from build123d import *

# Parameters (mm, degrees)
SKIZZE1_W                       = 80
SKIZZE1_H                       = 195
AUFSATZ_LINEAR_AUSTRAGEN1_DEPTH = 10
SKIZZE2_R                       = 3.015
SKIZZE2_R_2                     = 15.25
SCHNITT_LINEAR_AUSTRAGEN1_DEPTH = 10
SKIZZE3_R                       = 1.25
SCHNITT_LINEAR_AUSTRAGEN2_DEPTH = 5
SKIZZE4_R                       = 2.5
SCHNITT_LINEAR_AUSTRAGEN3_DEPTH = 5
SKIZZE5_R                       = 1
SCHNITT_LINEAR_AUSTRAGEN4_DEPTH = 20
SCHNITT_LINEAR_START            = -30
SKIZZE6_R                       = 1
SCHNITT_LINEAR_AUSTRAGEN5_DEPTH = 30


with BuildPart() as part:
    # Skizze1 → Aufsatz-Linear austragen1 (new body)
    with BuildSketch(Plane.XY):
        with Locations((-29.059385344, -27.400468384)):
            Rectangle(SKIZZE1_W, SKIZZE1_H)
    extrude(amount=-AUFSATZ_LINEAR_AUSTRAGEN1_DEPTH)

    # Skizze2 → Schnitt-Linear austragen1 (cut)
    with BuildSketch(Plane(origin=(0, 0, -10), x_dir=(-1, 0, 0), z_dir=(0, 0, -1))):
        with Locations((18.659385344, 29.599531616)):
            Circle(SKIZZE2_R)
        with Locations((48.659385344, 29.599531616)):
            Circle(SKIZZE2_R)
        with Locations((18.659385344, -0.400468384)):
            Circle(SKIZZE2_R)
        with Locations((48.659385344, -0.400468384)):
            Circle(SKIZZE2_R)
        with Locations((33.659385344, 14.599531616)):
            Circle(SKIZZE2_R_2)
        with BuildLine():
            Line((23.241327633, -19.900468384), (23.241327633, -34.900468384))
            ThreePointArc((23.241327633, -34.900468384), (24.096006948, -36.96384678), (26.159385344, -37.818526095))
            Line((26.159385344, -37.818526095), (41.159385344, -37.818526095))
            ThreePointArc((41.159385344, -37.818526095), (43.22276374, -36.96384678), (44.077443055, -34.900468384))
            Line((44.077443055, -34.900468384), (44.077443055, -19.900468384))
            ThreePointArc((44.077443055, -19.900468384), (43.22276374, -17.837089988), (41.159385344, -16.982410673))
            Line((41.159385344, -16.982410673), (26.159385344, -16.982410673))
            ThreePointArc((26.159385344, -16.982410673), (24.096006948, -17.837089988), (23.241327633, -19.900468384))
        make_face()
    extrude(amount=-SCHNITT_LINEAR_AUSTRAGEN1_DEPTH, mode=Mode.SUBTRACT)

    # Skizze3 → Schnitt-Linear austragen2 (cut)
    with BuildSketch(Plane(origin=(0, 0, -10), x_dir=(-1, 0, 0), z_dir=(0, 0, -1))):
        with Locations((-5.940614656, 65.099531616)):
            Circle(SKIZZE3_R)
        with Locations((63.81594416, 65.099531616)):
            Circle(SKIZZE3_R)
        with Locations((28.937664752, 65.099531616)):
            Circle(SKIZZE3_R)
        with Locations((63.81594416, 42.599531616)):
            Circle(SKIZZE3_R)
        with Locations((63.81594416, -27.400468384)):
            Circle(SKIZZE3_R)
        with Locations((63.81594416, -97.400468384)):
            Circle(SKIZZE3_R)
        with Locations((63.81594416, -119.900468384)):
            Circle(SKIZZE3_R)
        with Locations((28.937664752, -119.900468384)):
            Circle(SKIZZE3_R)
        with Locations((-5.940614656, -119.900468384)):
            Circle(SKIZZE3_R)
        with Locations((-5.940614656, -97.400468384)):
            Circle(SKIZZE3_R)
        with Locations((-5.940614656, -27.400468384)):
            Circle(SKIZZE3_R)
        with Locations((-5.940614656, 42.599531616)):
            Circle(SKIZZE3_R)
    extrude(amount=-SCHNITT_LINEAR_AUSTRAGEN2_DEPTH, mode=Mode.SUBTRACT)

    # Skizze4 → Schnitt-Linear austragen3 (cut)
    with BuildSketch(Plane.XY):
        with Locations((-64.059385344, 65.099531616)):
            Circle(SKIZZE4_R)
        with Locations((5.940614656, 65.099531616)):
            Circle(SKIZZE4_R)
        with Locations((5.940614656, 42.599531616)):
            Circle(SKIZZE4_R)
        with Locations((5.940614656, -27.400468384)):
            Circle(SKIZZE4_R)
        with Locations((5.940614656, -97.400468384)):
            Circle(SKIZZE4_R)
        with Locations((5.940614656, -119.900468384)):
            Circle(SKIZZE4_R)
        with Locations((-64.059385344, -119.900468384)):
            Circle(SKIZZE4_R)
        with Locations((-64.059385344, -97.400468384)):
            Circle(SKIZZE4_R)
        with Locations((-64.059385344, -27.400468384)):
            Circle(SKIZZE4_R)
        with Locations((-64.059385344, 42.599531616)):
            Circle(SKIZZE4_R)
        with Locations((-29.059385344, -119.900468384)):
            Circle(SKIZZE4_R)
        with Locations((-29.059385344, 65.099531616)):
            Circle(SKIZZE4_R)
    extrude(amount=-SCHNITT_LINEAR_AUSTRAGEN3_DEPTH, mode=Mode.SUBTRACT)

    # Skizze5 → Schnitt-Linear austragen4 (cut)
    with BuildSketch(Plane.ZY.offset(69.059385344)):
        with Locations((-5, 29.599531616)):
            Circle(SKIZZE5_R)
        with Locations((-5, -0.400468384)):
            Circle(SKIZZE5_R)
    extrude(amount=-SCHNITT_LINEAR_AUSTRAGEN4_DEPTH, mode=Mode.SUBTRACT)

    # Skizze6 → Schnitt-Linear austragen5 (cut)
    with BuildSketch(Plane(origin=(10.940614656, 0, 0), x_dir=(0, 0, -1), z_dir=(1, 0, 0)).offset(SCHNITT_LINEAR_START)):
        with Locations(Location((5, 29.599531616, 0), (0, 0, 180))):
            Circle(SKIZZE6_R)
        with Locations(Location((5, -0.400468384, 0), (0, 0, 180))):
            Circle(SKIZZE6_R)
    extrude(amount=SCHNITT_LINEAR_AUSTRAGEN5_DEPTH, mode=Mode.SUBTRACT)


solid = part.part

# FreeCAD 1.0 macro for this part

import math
import FreeCAD as App
import Part
import Sketcher
from FreeCAD import Vector

doc = App.newDocument("Part")
body = doc.addObject("PartDesign::Body", "Body")

# Sketch on XY plane
sketch1 = body.newObject("Sketcher::SketchObject", "Sketch")
sketch1.AttachmentSupport = (doc.getObject("XY_Plane"), [""])
sketch1.MapMode = "FlatFace"
sketch1.addGeometry([
    Part.LineSegment(Vector(-69.059385, 70.099532, 0), Vector(-69.059385, -124.900468, 0)),
    Part.LineSegment(Vector(-69.059385, -124.900468, 0), Vector(10.940615, -124.900468, 0)),
    Part.LineSegment(Vector(10.940615, -124.900468, 0), Vector(10.940615, 70.099532, 0)),
    Part.LineSegment(Vector(10.940615, 70.099532, 0), Vector(-69.059385, 70.099532, 0)),
], False)
sketch1.addConstraint([
    Sketcher.Constraint("Coincident", 0, 2, 1, 1),
    Sketcher.Constraint("Coincident", 1, 2, 2, 1),
    Sketcher.Constraint("Coincident", 2, 2, 3, 1),
    Sketcher.Constraint("Coincident", 3, 2, 0, 1),
    Sketcher.Constraint("Vertical", 0),
    Sketcher.Constraint("Horizontal", 1),
    Sketcher.Constraint("Vertical", 2),
    Sketcher.Constraint("Horizontal", 3),
    Sketcher.Constraint("DistanceX", 1, 1, 1, 2, 80.0),
    Sketcher.Constraint("DistanceY", 0, 2, 0, 1, 195.0),
    Sketcher.Constraint("DistanceY", 0, 2, -1, 1, 124.900468),
    Sketcher.Constraint("DistanceX", 0, 2, -1, 1, 69.059385),
])
pad1 = body.newObject("PartDesign::Pad", "Pad")
pad1.Profile = sketch1
pad1.Length = 10
pad1.Reversed = True

# Sketch on XY plane
sketch2 = body.newObject("Sketcher::SketchObject", "Sketch001")
sketch2.AttachmentSupport = (doc.getObject("XY_Plane"), [""])
sketch2.MapMode = "FlatFace"
sketch2.AttachmentOffset = App.Placement(Vector(0, 0, -10), App.Rotation())
sketch2.addGeometry([
    Part.Circle(Vector(-18.659385, 29.599532, 0), Vector(0, 0, 1), 3.015),  # 0
    Part.Circle(Vector(-48.659385, 29.599532, 0), Vector(0, 0, 1), 3.015),  # 1
    Part.Circle(Vector(-18.659385, -0.400468, 0), Vector(0, 0, 1), 3.015),  # 2
    Part.Circle(Vector(-48.659385, -0.400468, 0), Vector(0, 0, 1), 3.015),  # 3
    Part.Circle(Vector(-33.659385, 14.599532, 0), Vector(0, 0, 1), 15.25),  # 4
    Part.LineSegment(Vector(-23.241328, -19.900468, 0), Vector(-23.241328, -34.900468, 0)),  # 5
    Part.ArcOfCircle(Part.Circle(Vector(-26.159385, -34.900468, 0), Vector(0, 0, 1), 2.918058), math.radians(-90), math.radians(0)),  # 6
    Part.LineSegment(Vector(-26.159385, -37.818526, 0), Vector(-41.159385, -37.818526, 0)),  # 7
    Part.ArcOfCircle(Part.Circle(Vector(-41.159385, -34.900468, 0), Vector(0, 0, 1), 2.918058), math.radians(180), math.radians(270)),  # 8
    Part.LineSegment(Vector(-44.077443, -34.900468, 0), Vector(-44.077443, -19.900468, 0)),  # 9
    Part.ArcOfCircle(Part.Circle(Vector(-41.159385, -19.900468, 0), Vector(0, 0, 1), 2.918058), math.radians(90), math.radians(180)),  # 10
    Part.LineSegment(Vector(-41.159385, -16.982411, 0), Vector(-26.159385, -16.982411, 0)),  # 11
    Part.ArcOfCircle(Part.Circle(Vector(-26.159385, -19.900468, 0), Vector(0, 0, 1), 2.918058), math.radians(0), math.radians(90)),  # 12
], False)
sketch2.addConstraint([
    Sketcher.Constraint("Tangent", 5, 2, 6, 2),
    Sketcher.Constraint("Tangent", 6, 1, 7, 1),
    Sketcher.Constraint("Tangent", 7, 2, 8, 2),
    Sketcher.Constraint("Tangent", 8, 1, 9, 1),
    Sketcher.Constraint("Tangent", 9, 2, 10, 2),
    Sketcher.Constraint("Tangent", 10, 1, 11, 1),
    Sketcher.Constraint("Tangent", 11, 2, 12, 2),
    Sketcher.Constraint("Tangent", 12, 1, 5, 1),
    Sketcher.Constraint("Vertical", 5),
    Sketcher.Constraint("Horizontal", 7),
    Sketcher.Constraint("Vertical", 9),
    Sketcher.Constraint("Horizontal", 11),
    Sketcher.Constraint("Equal", 0, 1),
    Sketcher.Constraint("Equal", 1, 2),
    Sketcher.Constraint("Equal", 2, 3),
    Sketcher.Constraint("Equal", 6, 8),
    Sketcher.Constraint("Equal", 8, 10),
    Sketcher.Constraint("Equal", 10, 12),
    Sketcher.Constraint("Horizontal", 0, 3, 1, 3),
    Sketcher.Constraint("Horizontal", 2, 3, 3, 3),
    Sketcher.Constraint("Vertical", 0, 3, 2, 3),
    Sketcher.Constraint("Vertical", 1, 3, 3, 3),
    Sketcher.Constraint("Equal", 11, 5),
    Sketcher.Constraint("Diameter", 4, 30.5),
    Sketcher.Constraint("Diameter", 0, 6.03),
    Sketcher.Constraint("DistanceX", 7, 2, 7, 1, 15.0),
    Sketcher.Constraint("DistanceX", 1, 3, 0, 3, 30.0),
    Sketcher.Constraint("DistanceY", 2, 3, 0, 3, 30.0),
    Sketcher.Constraint("DistanceX", 4, 3, 0, 3, 15.0),
    Sketcher.Constraint("DistanceY", 4, 3, 0, 3, 15.0),
    Sketcher.Constraint("DistanceX", 6, 3, 2, 3, 7.5),
    Sketcher.Constraint("DistanceY", 6, 3, 2, 3, 34.5),
    Sketcher.Constraint("Radius", 6, 2.918058),
    Sketcher.Constraint("DistanceY", -1, 1, 0, 3, 29.599532),
    Sketcher.Constraint("DistanceX", 0, 3, -1, 1, 18.659385),
])
pocket1 = body.newObject("PartDesign::Pocket", "Pocket")
pocket1.Profile = sketch2
pocket1.Length = 10
pocket1.Reversed = True

# Sketch on XY plane
sketch3 = body.newObject("Sketcher::SketchObject", "Sketch002")
sketch3.AttachmentSupport = (doc.getObject("XY_Plane"), [""])
sketch3.MapMode = "FlatFace"
sketch3.AttachmentOffset = App.Placement(Vector(0, 0, -10), App.Rotation())
sketch3.addGeometry([
    Part.Circle(Vector(5.940615, 65.099532, 0), Vector(0, 0, 1), 1.25),  # 0
    Part.Circle(Vector(-63.815944, 65.099532, 0), Vector(0, 0, 1), 1.25),  # 1
    Part.Circle(Vector(-28.937665, 65.099532, 0), Vector(0, 0, 1), 1.25),  # 2
    Part.Circle(Vector(-63.815944, 42.599532, 0), Vector(0, 0, 1), 1.25),  # 3
    Part.Circle(Vector(-63.815944, -27.400468, 0), Vector(0, 0, 1), 1.25),  # 4
    Part.Circle(Vector(-63.815944, -97.400468, 0), Vector(0, 0, 1), 1.25),  # 5
    Part.Circle(Vector(-63.815944, -119.900468, 0), Vector(0, 0, 1), 1.25),  # 6
    Part.Circle(Vector(-28.937665, -119.900468, 0), Vector(0, 0, 1), 1.25),  # 7
    Part.Circle(Vector(5.940615, -119.900468, 0), Vector(0, 0, 1), 1.25),  # 8
    Part.Circle(Vector(5.940615, -97.400468, 0), Vector(0, 0, 1), 1.25),  # 9
    Part.Circle(Vector(5.940615, -27.400468, 0), Vector(0, 0, 1), 1.25),  # 10
    Part.Circle(Vector(5.940615, 42.599532, 0), Vector(0, 0, 1), 1.25),  # 11
], False)
sketch3.addConstraint([
    Sketcher.Constraint("Equal", 0, 1),
    Sketcher.Constraint("Equal", 1, 2),
    Sketcher.Constraint("Equal", 2, 3),
    Sketcher.Constraint("Equal", 3, 4),
    Sketcher.Constraint("Equal", 4, 5),
    Sketcher.Constraint("Equal", 5, 6),
    Sketcher.Constraint("Equal", 6, 7),
    Sketcher.Constraint("Equal", 7, 8),
    Sketcher.Constraint("Equal", 8, 9),
    Sketcher.Constraint("Equal", 9, 10),
    Sketcher.Constraint("Equal", 10, 11),
    Sketcher.Constraint("Horizontal", 0, 3, 1, 3),
    Sketcher.Constraint("Horizontal", 1, 3, 2, 3),
    Sketcher.Constraint("Horizontal", 6, 3, 7, 3),
    Sketcher.Constraint("Horizontal", 7, 3, 8, 3),
    Sketcher.Constraint("Horizontal", 5, 3, 9, 3),
    Sketcher.Constraint("Horizontal", 4, 3, 10, 3),
    Sketcher.Constraint("Horizontal", 3, 3, 11, 3),
    Sketcher.Constraint("Vertical", 1, 3, 3, 3),
    Sketcher.Constraint("Vertical", 3, 3, 4, 3),
    Sketcher.Constraint("Vertical", 4, 3, 5, 3),
    Sketcher.Constraint("Vertical", 5, 3, 6, 3),
    Sketcher.Constraint("Vertical", 2, 3, 7, 3),
    Sketcher.Constraint("Vertical", 0, 3, 8, 3),
    Sketcher.Constraint("Vertical", 8, 3, 9, 3),
    Sketcher.Constraint("Vertical", 9, 3, 10, 3),
    Sketcher.Constraint("Vertical", 10, 3, 11, 3),
    Sketcher.Constraint("Diameter", 0, 2.5),
    Sketcher.Constraint("DistanceY", 4, 3, 3, 3, 70.0),
    Sketcher.Constraint("DistanceY", 5, 3, 4, 3, 70.0),
    Sketcher.Constraint("DistanceY", 6, 3, 1, 3, 185.0),
    Sketcher.Constraint("DistanceY", 3, 3, 1, 3, 22.5),
    Sketcher.Constraint("DistanceY", -1, 1, 0, 3, 65.099532),
    Sketcher.Constraint("DistanceX", 1, 3, 0, 3, 69.756559),
    Sketcher.Constraint("DistanceX", 2, 3, 0, 3, 34.878279),
    Sketcher.Constraint("DistanceX", -1, 1, 0, 3, 5.940615),
])
pocket2 = body.newObject("PartDesign::Pocket", "Pocket001")
pocket2.Profile = sketch3
pocket2.Length = 5
pocket2.Reversed = True

# Sketch on XY plane
sketch4 = body.newObject("Sketcher::SketchObject", "Sketch003")
sketch4.AttachmentSupport = (doc.getObject("XY_Plane"), [""])
sketch4.MapMode = "FlatFace"
sketch4.addGeometry([
    Part.Circle(Vector(-64.059385, 65.099532, 0), Vector(0, 0, 1), 2.5),  # 0
    Part.Circle(Vector(5.940615, 65.099532, 0), Vector(0, 0, 1), 2.5),  # 1
    Part.Circle(Vector(5.940615, 42.599532, 0), Vector(0, 0, 1), 2.5),  # 2
    Part.Circle(Vector(5.940615, -27.400468, 0), Vector(0, 0, 1), 2.5),  # 3
    Part.Circle(Vector(5.940615, -97.400468, 0), Vector(0, 0, 1), 2.5),  # 4
    Part.Circle(Vector(5.940615, -119.900468, 0), Vector(0, 0, 1), 2.5),  # 5
    Part.Circle(Vector(-64.059385, -119.900468, 0), Vector(0, 0, 1), 2.5),  # 6
    Part.Circle(Vector(-64.059385, -97.400468, 0), Vector(0, 0, 1), 2.5),  # 7
    Part.Circle(Vector(-64.059385, -27.400468, 0), Vector(0, 0, 1), 2.5),  # 8
    Part.Circle(Vector(-64.059385, 42.599532, 0), Vector(0, 0, 1), 2.5),  # 9
    Part.Circle(Vector(-29.059385, -119.900468, 0), Vector(0, 0, 1), 2.5),  # 10
    Part.Circle(Vector(-29.059385, 65.099532, 0), Vector(0, 0, 1), 2.5),  # 11
], False)
sketch4.addConstraint([
    Sketcher.Constraint("Equal", 0, 1),
    Sketcher.Constraint("Equal", 1, 2),
    Sketcher.Constraint("Equal", 2, 3),
    Sketcher.Constraint("Equal", 3, 4),
    Sketcher.Constraint("Equal", 4, 5),
    Sketcher.Constraint("Equal", 5, 6),
    Sketcher.Constraint("Equal", 6, 7),
    Sketcher.Constraint("Equal", 7, 8),
    Sketcher.Constraint("Equal", 8, 9),
    Sketcher.Constraint("Equal", 9, 10),
    Sketcher.Constraint("Equal", 10, 11),
    Sketcher.Constraint("Horizontal", 0, 3, 1, 3),
    Sketcher.Constraint("Horizontal", 5, 3, 6, 3),
    Sketcher.Constraint("Horizontal", 4, 3, 7, 3),
    Sketcher.Constraint("Horizontal", 3, 3, 8, 3),
    Sketcher.Constraint("Horizontal", 2, 3, 9, 3),
    Sketcher.Constraint("Horizontal", 6, 3, 10, 3),
    Sketcher.Constraint("Horizontal", 1, 3, 11, 3),
    Sketcher.Constraint("Vertical", 1, 3, 2, 3),
    Sketcher.Constraint("Vertical", 2, 3, 3, 3),
    Sketcher.Constraint("Vertical", 3, 3, 4, 3),
    Sketcher.Constraint("Vertical", 4, 3, 5, 3),
    Sketcher.Constraint("Vertical", 0, 3, 6, 3),
    Sketcher.Constraint("Vertical", 6, 3, 7, 3),
    Sketcher.Constraint("Vertical", 7, 3, 8, 3),
    Sketcher.Constraint("Vertical", 8, 3, 9, 3),
    Sketcher.Constraint("Vertical", 10, 3, 11, 3),
    Sketcher.Constraint("Diameter", 0, 5.0),
    Sketcher.Constraint("DistanceX", 0, 3, 1, 3, 70.0),
    Sketcher.Constraint("DistanceY", 3, 3, 2, 3, 70.0),
    Sketcher.Constraint("DistanceY", 4, 3, 3, 3, 70.0),
    Sketcher.Constraint("DistanceY", 5, 3, 1, 3, 185.0),
    Sketcher.Constraint("DistanceX", 10, 3, 5, 3, 35.0),
    Sketcher.Constraint("DistanceY", 2, 3, 1, 3, 22.5),
    Sketcher.Constraint("DistanceY", -1, 1, 0, 3, 65.099532),
    Sketcher.Constraint("DistanceX", 0, 3, -1, 1, 64.059385),
])
pocket3 = body.newObject("PartDesign::Pocket", "Pocket002")
pocket3.Profile = sketch4
pocket3.Length = 5

# Sketch on YZ plane
sketch5 = body.newObject("Sketcher::SketchObject", "Sketch004")
sketch5.AttachmentSupport = (doc.getObject("YZ_Plane"), [""])
sketch5.MapMode = "FlatFace"
sketch5.AttachmentOffset = App.Placement(Vector(0, 0, -69.059385), App.Rotation())
sketch5.addGeometry([
    Part.Circle(Vector(29.599532, -5, 0), Vector(0, 0, 1), 1),
    Part.Circle(Vector(-0.400468, -5, 0), Vector(0, 0, 1), 1),
], False)
sketch5.addConstraint([
    Sketcher.Constraint("Equal", 0, 1),
    Sketcher.Constraint("Horizontal", 0, 3, 1, 3),
    Sketcher.Constraint("Diameter", 0, 2.0),
    Sketcher.Constraint("DistanceY", 0, 3, -1, 1, 5.0),
    Sketcher.Constraint("DistanceX", 1, 3, 0, 3, 30.0),
    Sketcher.Constraint("DistanceX", -1, 1, 0, 3, 29.599532),
])
pocket4 = body.newObject("PartDesign::Pocket", "Pocket003")
pocket4.Profile = sketch5
pocket4.Length = 20
pocket4.Reversed = True

# Sketch on YZ plane
sketch6 = body.newObject("Sketcher::SketchObject", "Sketch005")
sketch6.AttachmentSupport = (doc.getObject("YZ_Plane"), [""])
sketch6.MapMode = "FlatFace"
sketch6.AttachmentOffset = App.Placement(Vector(0, 0, -19.059385), App.Rotation())
sketch6.addGeometry([
    Part.Circle(Vector(29.599532, -5, 0), Vector(0, 0, 1), 1),
    Part.Circle(Vector(-0.400468, -5, 0), Vector(0, 0, 1), 1),
], False)
sketch6.addConstraint([
    Sketcher.Constraint("Equal", 0, 1),
    Sketcher.Constraint("Horizontal", 0, 3, 1, 3),
    Sketcher.Constraint("Diameter", 0, 2.0),
    Sketcher.Constraint("DistanceY", 0, 3, -1, 1, 5.0),
    Sketcher.Constraint("DistanceX", 1, 3, 0, 3, 30.0),
    Sketcher.Constraint("DistanceX", -1, 1, 0, 3, 29.599532),
])
pocket5 = body.newObject("PartDesign::Pocket", "Pocket004")
pocket5.Profile = sketch6
pocket5.Length = 30
pocket5.Reversed = True

doc.recompute()
